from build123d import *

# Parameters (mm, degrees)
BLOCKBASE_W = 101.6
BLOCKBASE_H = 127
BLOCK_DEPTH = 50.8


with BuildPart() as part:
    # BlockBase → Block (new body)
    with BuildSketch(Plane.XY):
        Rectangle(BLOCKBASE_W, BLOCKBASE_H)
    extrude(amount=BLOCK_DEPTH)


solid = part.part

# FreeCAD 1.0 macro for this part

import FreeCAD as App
import Part
import Sketcher
from FreeCAD import Vector
Q = App.Units.Quantity

doc = App.newDocument("Part")
body = doc.addObject("PartDesign::Body", "Body")

# Sketch on XY plane
sketch1 = body.newObject("Sketcher::SketchObject", "Sketch")
sketch1.AttachmentSupport = (doc.getObject("XY_Plane"), [""])
sketch1.MapMode = "FlatFace"
sketch1.addGeometry([
    Part.LineSegment(Vector(-50.8, 63.5, 0), Vector(-50.8, -63.5, 0)),
    Part.LineSegment(Vector(-50.8, -63.5, 0), Vector(50.8, -63.5, 0)),
    Part.LineSegment(Vector(50.8, -63.5, 0), Vector(50.8, 63.5, 0)),
    Part.LineSegment(Vector(50.8, 63.5, 0), Vector(-50.8, 63.5, 0)),
], False)
sketch1.addConstraint([
    Sketcher.Constraint("Coincident", 0, 2, 1, 1),
    Sketcher.Constraint("Coincident", 1, 2, 2, 1),
    Sketcher.Constraint("Coincident", 2, 2, 3, 1),
    Sketcher.Constraint("Coincident", 3, 2, 0, 1),
    Sketcher.Constraint("Vertical", 0),
    Sketcher.Constraint("Horizontal", 1),
    Sketcher.Constraint("Vertical", 2),
    Sketcher.Constraint("Horizontal", 3),
    Sketcher.Constraint("Symmetric", 0, 2, 2, 2, -1, 1),
    Sketcher.Constraint("DistanceX", 1, 1, 1, 2, Q("4 in")),
    Sketcher.Constraint("DistanceY", 0, 2, 0, 1, Q("5 in")),
])
pad1 = body.newObject("PartDesign::Pad", "Pad")
pad1.Profile = sketch1
pad1.Length = Q("2 in")

doc.recompute()
